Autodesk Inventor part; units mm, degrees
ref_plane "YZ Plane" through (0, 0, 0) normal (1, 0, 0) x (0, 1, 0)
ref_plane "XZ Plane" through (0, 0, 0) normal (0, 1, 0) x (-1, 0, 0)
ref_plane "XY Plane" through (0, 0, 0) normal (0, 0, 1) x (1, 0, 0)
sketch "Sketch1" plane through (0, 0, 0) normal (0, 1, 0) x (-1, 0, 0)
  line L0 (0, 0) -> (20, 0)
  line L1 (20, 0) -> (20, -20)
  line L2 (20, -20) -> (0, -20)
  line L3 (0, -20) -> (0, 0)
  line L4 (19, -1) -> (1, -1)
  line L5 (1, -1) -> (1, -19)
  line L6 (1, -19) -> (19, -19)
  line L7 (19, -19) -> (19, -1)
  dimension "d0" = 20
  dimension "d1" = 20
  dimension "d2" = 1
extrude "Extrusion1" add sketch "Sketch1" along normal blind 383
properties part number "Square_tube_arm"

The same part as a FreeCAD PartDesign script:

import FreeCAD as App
import Part
import Sketcher

V = App.Vector
Q = App.Units.Quantity

doc = App.newDocument("Part")
body = doc.addObject("PartDesign::Body", "Body")

sketch1 = body.newObject("Sketcher::SketchObject", "Sketch")
sketch1.AttachmentSupport = (doc.getObject("XZ_Plane"), [""])
sketch1.MapMode = "FlatFace"
sketch1.addGeometry(Part.LineSegment(V(-20, 0, 0), V(0, 0, 0)), False)
sketch1.addGeometry(Part.LineSegment(V(0, 0, 0), V(0, -20, 0)), False)
sketch1.addGeometry(Part.LineSegment(V(0, -20, 0), V(-20, -20, 0)), False)
sketch1.addGeometry(Part.LineSegment(V(-20, -20, 0), V(-20, 0, 0)), False)
sketch1.addGeometry(Part.LineSegment(V(-1, -1, 0), V(-19, -1, 0)), False)
sketch1.addGeometry(Part.LineSegment(V(-19, -1, 0), V(-19, -19, 0)), False)
sketch1.addGeometry(Part.LineSegment(V(-19, -19, 0), V(-1, -19, 0)), False)
sketch1.addGeometry(Part.LineSegment(V(-1, -19, 0), V(-1, -1, 0)), False)
sketch1.addConstraint(Sketcher.Constraint("Coincident", 0, 2, 1, 1))
sketch1.addConstraint(Sketcher.Constraint("Coincident", 1, 2, 2, 1))
sketch1.addConstraint(Sketcher.Constraint("Coincident", 2, 2, 3, 1))
sketch1.addConstraint(Sketcher.Constraint("Coincident", 3, 2, 0, 1))
sketch1.addConstraint(Sketcher.Constraint("Coincident", 4, 2, 5, 1))
sketch1.addConstraint(Sketcher.Constraint("Coincident", 5, 2, 6, 1))
sketch1.addConstraint(Sketcher.Constraint("Coincident", 6, 2, 7, 1))
sketch1.addConstraint(Sketcher.Constraint("Coincident", 7, 2, 4, 1))
sketch1.addConstraint(Sketcher.Constraint("Horizontal", 0))
sketch1.addConstraint(Sketcher.Constraint("Vertical", 1))
sketch1.addConstraint(Sketcher.Constraint("Horizontal", 2))
sketch1.addConstraint(Sketcher.Constraint("Vertical", 3))
sketch1.addConstraint(Sketcher.Constraint("Horizontal", 4))
sketch1.addConstraint(Sketcher.Constraint("Vertical", 5))
sketch1.addConstraint(Sketcher.Constraint("Horizontal", 6))
sketch1.addConstraint(Sketcher.Constraint("Vertical", 7))
sketch1.addConstraint(Sketcher.Constraint("Coincident", 0, 2, -1, 1))
sketch1.addConstraint(Sketcher.Constraint("Equal", 2, 1))
sketch1.addConstraint(Sketcher.Constraint("Equal", 6, 5))
sketch1.addConstraint(Sketcher.Constraint("DistanceX", 0, 1, 0, 2, Q("20 mm")))
sketch1.addConstraint(Sketcher.Constraint("DistanceY", 4, 2, -1, 1, Q("1 mm")))
sketch1.addConstraint(Sketcher.Constraint("DistanceX", 6, 2, -1, 1, Q("1 mm")))
sketch1.addConstraint(Sketcher.Constraint("DistanceX", 3, 2, 4, 2, Q("1 mm")))
pad1 = body.newObject("PartDesign::Pad", "Pad")
pad1.Profile = sketch1
pad1.Length = 383
pad1.Reversed = True

doc.recompute()
